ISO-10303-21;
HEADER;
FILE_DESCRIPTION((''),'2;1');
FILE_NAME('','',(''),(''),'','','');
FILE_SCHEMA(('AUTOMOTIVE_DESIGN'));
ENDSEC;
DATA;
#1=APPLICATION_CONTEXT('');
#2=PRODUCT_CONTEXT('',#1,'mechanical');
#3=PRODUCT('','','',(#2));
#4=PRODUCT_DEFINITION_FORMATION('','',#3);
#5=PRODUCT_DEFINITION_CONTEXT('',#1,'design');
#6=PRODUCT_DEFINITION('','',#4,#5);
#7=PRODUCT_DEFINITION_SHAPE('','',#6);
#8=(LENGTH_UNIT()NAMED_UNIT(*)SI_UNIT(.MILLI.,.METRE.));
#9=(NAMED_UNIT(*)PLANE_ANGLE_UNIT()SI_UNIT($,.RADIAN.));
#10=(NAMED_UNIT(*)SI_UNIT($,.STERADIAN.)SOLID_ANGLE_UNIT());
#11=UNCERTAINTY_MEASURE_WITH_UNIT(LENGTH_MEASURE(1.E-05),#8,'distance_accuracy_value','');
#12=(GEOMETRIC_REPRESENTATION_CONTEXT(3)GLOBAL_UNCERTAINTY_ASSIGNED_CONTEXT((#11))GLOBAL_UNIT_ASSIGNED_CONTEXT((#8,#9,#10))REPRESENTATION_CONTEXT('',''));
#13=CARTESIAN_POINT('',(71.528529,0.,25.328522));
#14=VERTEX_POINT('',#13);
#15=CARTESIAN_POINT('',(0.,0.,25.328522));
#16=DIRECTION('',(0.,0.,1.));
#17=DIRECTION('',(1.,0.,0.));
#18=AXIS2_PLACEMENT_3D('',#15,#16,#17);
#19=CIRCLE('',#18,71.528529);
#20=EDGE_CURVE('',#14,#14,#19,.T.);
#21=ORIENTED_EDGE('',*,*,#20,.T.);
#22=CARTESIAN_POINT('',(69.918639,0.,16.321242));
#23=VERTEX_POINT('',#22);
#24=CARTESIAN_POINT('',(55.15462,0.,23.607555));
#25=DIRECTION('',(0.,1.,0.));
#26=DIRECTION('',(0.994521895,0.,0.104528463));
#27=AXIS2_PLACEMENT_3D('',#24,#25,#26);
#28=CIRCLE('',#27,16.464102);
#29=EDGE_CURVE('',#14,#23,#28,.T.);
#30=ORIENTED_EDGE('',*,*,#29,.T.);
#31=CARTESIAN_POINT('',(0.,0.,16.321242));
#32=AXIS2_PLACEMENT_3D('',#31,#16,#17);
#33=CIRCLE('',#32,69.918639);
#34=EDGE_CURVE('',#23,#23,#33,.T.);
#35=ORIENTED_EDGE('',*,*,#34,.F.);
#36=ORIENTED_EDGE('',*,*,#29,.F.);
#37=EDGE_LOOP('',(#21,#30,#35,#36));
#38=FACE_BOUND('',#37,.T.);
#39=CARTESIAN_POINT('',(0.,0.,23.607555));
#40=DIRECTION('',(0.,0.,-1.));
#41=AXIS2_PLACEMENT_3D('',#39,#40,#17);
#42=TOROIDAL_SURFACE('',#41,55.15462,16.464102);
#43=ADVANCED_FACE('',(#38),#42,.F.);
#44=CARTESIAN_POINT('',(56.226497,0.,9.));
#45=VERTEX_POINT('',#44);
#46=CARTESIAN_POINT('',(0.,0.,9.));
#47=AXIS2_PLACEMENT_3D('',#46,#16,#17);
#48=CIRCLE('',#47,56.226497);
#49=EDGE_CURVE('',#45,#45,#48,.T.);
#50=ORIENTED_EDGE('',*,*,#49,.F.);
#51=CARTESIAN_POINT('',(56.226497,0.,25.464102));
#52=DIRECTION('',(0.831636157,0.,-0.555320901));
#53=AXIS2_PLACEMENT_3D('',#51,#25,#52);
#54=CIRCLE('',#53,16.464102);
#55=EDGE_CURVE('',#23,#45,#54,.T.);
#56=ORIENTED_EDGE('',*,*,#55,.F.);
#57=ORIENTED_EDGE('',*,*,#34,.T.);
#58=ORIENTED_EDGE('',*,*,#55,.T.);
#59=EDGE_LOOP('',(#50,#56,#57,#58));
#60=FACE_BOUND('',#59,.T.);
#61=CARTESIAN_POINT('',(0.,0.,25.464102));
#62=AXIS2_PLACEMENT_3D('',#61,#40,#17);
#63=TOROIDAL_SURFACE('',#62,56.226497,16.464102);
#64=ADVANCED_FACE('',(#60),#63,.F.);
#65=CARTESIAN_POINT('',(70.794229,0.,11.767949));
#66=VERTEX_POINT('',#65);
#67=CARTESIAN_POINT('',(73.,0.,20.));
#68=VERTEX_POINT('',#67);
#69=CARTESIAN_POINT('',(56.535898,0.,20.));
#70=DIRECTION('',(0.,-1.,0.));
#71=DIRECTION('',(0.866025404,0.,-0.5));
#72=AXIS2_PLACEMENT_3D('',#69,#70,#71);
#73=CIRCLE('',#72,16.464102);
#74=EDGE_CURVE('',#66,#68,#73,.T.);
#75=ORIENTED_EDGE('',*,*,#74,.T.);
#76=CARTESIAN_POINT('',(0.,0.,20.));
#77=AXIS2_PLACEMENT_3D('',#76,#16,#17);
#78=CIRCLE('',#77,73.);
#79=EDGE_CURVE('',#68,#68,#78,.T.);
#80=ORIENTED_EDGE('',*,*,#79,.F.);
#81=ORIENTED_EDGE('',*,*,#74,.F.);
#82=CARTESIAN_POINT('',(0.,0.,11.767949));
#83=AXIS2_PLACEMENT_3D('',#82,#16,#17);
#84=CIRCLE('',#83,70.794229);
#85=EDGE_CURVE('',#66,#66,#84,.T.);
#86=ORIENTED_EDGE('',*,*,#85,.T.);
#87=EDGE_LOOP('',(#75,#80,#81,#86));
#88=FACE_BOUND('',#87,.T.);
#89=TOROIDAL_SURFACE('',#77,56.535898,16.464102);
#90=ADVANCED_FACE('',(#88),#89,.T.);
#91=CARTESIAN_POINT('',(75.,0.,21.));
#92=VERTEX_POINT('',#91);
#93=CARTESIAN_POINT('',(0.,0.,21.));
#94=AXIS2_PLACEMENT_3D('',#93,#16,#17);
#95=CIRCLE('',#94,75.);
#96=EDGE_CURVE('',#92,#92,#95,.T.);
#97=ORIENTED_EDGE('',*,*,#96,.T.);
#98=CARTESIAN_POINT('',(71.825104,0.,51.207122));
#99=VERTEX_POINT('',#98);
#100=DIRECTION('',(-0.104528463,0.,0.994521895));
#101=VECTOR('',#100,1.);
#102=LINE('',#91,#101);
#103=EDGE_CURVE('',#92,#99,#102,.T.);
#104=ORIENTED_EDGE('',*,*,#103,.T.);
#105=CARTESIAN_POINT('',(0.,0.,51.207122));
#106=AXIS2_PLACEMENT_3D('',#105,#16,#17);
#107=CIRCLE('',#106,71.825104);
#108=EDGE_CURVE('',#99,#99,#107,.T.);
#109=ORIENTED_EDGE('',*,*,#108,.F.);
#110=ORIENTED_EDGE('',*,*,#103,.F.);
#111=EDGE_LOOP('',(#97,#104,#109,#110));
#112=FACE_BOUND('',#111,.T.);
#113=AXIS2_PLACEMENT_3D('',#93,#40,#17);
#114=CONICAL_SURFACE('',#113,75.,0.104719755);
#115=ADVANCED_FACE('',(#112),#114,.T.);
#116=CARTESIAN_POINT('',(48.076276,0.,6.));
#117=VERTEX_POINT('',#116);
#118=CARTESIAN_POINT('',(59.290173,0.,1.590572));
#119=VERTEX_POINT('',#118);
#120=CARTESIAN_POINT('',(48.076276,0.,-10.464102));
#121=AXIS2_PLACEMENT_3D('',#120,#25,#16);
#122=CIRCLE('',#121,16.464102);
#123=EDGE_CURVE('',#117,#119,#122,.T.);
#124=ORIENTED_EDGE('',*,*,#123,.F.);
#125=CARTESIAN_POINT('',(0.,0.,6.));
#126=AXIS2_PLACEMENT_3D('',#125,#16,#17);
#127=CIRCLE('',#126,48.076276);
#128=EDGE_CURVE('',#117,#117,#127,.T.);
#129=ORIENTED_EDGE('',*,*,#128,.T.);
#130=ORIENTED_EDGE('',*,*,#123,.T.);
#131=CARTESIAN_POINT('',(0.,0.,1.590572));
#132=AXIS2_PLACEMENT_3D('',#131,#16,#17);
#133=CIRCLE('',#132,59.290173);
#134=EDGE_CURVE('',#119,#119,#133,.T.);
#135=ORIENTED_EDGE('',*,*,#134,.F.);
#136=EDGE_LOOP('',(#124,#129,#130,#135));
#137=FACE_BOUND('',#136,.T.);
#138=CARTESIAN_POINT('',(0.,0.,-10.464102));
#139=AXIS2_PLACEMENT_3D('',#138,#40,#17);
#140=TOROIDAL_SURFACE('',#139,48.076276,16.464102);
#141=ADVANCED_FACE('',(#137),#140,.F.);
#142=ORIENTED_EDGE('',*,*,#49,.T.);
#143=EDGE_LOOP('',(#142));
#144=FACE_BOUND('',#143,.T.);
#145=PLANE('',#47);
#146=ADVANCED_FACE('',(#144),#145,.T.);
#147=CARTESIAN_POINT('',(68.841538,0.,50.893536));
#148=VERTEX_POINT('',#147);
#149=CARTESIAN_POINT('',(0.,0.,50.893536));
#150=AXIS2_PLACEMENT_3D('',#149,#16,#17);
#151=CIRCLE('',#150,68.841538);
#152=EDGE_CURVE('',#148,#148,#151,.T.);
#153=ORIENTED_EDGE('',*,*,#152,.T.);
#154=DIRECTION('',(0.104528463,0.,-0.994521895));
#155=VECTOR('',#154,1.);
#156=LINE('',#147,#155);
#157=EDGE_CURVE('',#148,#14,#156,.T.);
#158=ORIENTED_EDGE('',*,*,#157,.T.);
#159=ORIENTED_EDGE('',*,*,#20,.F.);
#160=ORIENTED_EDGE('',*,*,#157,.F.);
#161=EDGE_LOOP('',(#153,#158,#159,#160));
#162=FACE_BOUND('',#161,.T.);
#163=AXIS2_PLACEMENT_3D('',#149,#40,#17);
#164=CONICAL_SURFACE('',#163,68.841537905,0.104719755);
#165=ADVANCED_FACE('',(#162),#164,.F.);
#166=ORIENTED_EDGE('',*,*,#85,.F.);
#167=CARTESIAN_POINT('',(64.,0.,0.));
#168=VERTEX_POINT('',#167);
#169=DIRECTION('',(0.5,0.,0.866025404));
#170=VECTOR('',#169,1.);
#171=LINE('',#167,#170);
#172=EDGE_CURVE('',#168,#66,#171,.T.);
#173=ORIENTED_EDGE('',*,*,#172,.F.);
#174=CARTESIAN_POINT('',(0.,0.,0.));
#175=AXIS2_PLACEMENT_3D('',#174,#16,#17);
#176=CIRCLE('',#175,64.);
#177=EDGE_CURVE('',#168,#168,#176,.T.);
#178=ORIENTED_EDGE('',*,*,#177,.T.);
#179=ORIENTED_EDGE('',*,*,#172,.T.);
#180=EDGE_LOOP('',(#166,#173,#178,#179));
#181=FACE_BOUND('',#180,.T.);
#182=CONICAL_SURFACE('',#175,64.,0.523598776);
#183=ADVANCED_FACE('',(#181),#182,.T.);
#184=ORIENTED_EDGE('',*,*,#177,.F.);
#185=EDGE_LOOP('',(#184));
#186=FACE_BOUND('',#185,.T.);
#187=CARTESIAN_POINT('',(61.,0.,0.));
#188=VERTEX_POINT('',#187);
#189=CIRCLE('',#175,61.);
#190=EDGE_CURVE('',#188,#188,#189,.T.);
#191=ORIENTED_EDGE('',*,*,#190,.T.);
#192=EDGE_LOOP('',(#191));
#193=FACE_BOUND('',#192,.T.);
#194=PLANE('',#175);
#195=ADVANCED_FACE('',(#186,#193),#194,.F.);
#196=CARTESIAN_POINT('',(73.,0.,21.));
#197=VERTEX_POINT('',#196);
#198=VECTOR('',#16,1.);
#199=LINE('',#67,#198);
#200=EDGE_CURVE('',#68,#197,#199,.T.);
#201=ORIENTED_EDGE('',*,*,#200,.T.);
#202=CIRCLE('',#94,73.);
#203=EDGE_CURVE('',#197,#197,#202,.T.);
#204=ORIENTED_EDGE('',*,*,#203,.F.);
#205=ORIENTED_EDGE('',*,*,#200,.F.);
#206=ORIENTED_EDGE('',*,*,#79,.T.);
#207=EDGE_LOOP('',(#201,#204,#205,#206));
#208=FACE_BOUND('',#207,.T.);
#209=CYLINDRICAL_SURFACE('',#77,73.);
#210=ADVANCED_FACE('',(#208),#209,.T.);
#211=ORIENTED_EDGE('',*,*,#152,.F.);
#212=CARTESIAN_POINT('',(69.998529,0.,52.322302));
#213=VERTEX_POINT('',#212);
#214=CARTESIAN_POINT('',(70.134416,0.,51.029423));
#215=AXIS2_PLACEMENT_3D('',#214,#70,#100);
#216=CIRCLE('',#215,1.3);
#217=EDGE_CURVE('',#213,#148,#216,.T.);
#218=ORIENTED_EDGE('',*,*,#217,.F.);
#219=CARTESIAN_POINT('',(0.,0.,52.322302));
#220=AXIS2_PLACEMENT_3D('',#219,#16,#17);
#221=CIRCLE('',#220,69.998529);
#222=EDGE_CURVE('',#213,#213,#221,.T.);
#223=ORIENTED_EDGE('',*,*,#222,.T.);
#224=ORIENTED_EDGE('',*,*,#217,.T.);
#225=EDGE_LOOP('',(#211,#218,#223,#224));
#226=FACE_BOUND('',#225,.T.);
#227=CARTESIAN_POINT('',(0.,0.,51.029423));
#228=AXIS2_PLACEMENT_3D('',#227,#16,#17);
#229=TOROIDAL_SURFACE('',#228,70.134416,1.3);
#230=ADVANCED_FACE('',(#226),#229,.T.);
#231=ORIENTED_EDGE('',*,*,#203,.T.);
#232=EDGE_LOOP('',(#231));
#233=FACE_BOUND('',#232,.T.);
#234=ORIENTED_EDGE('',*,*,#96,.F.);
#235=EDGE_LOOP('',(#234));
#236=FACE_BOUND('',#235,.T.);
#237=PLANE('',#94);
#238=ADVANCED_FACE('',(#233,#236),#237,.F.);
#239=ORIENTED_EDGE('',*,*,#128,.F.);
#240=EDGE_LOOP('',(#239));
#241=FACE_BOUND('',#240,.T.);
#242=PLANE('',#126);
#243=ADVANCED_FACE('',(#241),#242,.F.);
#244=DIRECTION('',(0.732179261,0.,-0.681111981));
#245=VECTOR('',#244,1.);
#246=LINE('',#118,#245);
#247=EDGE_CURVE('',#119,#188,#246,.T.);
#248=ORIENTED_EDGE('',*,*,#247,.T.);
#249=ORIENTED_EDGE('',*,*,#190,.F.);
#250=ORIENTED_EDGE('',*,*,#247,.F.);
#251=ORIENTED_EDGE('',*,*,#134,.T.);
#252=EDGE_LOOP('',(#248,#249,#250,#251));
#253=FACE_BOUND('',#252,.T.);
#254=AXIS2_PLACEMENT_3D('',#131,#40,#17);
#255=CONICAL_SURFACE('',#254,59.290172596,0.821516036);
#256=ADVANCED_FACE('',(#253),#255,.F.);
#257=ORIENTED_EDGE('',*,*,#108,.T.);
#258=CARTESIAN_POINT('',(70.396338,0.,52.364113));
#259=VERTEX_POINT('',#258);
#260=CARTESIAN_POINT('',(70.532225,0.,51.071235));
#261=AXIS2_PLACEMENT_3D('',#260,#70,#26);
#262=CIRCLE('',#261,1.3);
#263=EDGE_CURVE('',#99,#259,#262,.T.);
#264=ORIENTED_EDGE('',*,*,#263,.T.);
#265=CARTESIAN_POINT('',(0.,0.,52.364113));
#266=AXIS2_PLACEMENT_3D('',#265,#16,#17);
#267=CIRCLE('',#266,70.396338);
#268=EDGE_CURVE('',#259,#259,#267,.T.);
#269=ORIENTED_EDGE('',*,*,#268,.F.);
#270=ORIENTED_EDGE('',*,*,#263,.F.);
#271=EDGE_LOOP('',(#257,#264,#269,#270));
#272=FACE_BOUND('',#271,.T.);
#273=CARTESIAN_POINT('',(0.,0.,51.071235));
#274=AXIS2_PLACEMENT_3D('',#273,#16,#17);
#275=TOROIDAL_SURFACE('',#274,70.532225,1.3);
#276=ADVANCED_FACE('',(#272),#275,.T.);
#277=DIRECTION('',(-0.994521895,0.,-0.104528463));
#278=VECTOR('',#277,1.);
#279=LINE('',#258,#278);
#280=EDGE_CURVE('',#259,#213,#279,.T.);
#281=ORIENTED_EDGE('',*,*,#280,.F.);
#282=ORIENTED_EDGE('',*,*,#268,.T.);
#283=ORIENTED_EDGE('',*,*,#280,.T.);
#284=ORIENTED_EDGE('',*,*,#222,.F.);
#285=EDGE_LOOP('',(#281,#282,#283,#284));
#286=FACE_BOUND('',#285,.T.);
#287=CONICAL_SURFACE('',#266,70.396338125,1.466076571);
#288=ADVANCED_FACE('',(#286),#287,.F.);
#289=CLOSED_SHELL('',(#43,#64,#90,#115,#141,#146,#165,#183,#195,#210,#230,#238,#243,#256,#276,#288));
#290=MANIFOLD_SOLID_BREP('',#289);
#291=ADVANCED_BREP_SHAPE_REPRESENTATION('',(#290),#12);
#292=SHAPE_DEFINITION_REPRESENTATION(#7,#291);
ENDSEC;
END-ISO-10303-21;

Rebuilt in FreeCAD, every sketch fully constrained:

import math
import FreeCAD as App
import Part
import Sketcher
from FreeCAD import Vector
Q = App.Units.Quantity

doc = App.newDocument("Part")
body = doc.addObject("PartDesign::Body", "Body")

# Sketch on XZ plane
sketch1 = doc.addObject("Sketcher::SketchObject", "Sketch")
body.addObject(sketch1)
sketch1.AttachmentSupport = (doc.XZ_Plane, [""])
sketch1.MapMode = "FlatFace"
sketch1.addGeometry([
    Part.ArcOfCircle(Part.Circle(Vector(56.23, 25.46, 0), Vector(0, 0, 1), 16.46), math.radians(-90), math.radians(-34)),  # 0
    Part.LineSegment(Vector(56.23, 9, 0), Vector(0, 9, 0)),  # 1
    Part.LineSegment(Vector(0, 9, 0), Vector(0, 6, 0)),  # 2
    Part.LineSegment(Vector(0, 6, 0), Vector(48.08, 6, 0)),  # 3
    Part.ArcOfCircle(Part.Circle(Vector(48.08, -10.46, 0), Vector(0, 0, 1), 16.46), math.radians(47), math.radians(90)),  # 4
    Part.LineSegment(Vector(59.29, 1.59, 0), Vector(61, 0, 0)),  # 5
    Part.LineSegment(Vector(61, 0, 0), Vector(64, 0, 0)),  # 6
    Part.LineSegment(Vector(64, 0, 0), Vector(70.79, 11.77, 0)),  # 7
    Part.ArcOfCircle(Part.Circle(Vector(56.54, 20, 0), Vector(0, 0, 1), 16.46), math.radians(-30), math.radians(0)),  # 8
    Part.LineSegment(Vector(73, 20, 0), Vector(73, 21, 0)),  # 9
    Part.LineSegment(Vector(73, 21, 0), Vector(75, 21, 0)),  # 10
    Part.LineSegment(Vector(75, 21, 0), Vector(71.83, 51.21, 0)),  # 11
    Part.ArcOfCircle(Part.Circle(Vector(70.53, 51.07, 0), Vector(0, 0, 1), 1.3), math.radians(6), math.radians(96)),  # 12
    Part.LineSegment(Vector(70.4, 52.36, 0), Vector(70, 52.32, 0)),  # 13
    Part.ArcOfCircle(Part.Circle(Vector(70.13, 51.03, 0), Vector(0, 0, 1), 1.3), math.radians(96), math.radians(186)),  # 14
    Part.LineSegment(Vector(68.84, 50.89, 0), Vector(71.53, 25.33, 0)),  # 15
    Part.ArcOfCircle(Part.Circle(Vector(55.15, 23.61, 0), Vector(0, 0, 1), 16.46), math.radians(-26), math.radians(6)),  # 16
], False)
sketch1.addConstraint([
    Sketcher.Constraint("Tangent", 0, 1, 1, 1),
    Sketcher.Constraint("Coincident", 1, 2, 2, 1),
    Sketcher.Constraint("Coincident", 2, 2, 3, 1),
    Sketcher.Constraint("Tangent", 3, 2, 4, 2),
    Sketcher.Constraint("Tangent", 4, 1, 5, 1),
    Sketcher.Constraint("Coincident", 5, 2, 6, 1),
    Sketcher.Constraint("Coincident", 6, 2, 7, 1),
    Sketcher.Constraint("Tangent", 7, 2, 8, 1),
    Sketcher.Constraint("Tangent", 8, 2, 9, 1),
    Sketcher.Constraint("Coincident", 9, 2, 10, 1),
    Sketcher.Constraint("Coincident", 10, 2, 11, 1),
    Sketcher.Constraint("Tangent", 11, 2, 12, 1),
    Sketcher.Constraint("Tangent", 12, 2, 13, 1),
    Sketcher.Constraint("Tangent", 13, 2, 14, 1),
    Sketcher.Constraint("Tangent", 14, 2, 15, 1),
    Sketcher.Constraint("Tangent", 15, 2, 16, 2),
    Sketcher.Constraint("Coincident", 16, 1, 0, 2),
    Sketcher.Constraint("Horizontal", 1),
    Sketcher.Constraint("Vertical", 2),
    Sketcher.Constraint("Horizontal", 3),
    Sketcher.Constraint("Horizontal", 6),
    Sketcher.Constraint("Vertical", 9),
    Sketcher.Constraint("Horizontal", 10),
    Sketcher.Constraint("Equal", 0, 4),
    Sketcher.Constraint("Equal", 4, 8),
    Sketcher.Constraint("Equal", 12, 14),
    Sketcher.Constraint("Equal", 8, 16),
    Sketcher.Constraint("PointOnObject", 1, 2, -2),
    Sketcher.Constraint("PointOnObject", 5, 2, -1),
    Sketcher.Constraint("Perpendicular", 11, 13),
    Sketcher.Constraint("Perpendicular", 13, 15),
    Sketcher.Constraint("Equal", 6, 2),
    Sketcher.Constraint("Radius", 12, Q("1.3 mm")),
    Sketcher.Constraint("DistanceX", 6, 1, 6, 2, Q("3 mm")),
    Sketcher.Constraint("DistanceX", 10, 1, 10, 2, Q("2 mm")),
    Sketcher.Constraint("DistanceY", 9, 1, 9, 2, Q("1 mm")),
    Sketcher.Constraint("Angle", 7, Q("60 deg")),
    Sketcher.Constraint("Angle", 11, Q("96 deg")),
    Sketcher.Constraint("DistanceY", -1, 1, 8, 3, Q("20 mm")),
    Sketcher.Constraint("DistanceY", -1, 1, 0, 1, Q("9 mm")),
    Sketcher.Constraint("DistanceX", -1, 1, 5, 2, Q("61 mm")),
    Sketcher.Constraint("DistanceX", -1, 1, 8, 2, Q("73 mm")),
    Sketcher.Constraint("Distance", 13, Q("0.4 mm")),
    Sketcher.Constraint("DistanceY", -1, 1, 13, 2, Q("52.322302 mm")),
    Sketcher.Constraint("DistanceX", 0, 3, 8, 3, Q("0.309401 mm")),
    Sketcher.Constraint("DistanceX", 7, 2, 15, 2, Q("0.734301 mm")),
    Sketcher.Constraint("DistanceX", 3, 1, 3, 2, Q("48.076276 mm")),
])
revolution = doc.addObject("PartDesign::Revolution", "Revolution")
body.addObject(revolution)
revolution.Profile = sketch1
revolution.ReferenceAxis = (sketch1, ["V_Axis"])
revolution.Angle = 360

doc.recompute()
